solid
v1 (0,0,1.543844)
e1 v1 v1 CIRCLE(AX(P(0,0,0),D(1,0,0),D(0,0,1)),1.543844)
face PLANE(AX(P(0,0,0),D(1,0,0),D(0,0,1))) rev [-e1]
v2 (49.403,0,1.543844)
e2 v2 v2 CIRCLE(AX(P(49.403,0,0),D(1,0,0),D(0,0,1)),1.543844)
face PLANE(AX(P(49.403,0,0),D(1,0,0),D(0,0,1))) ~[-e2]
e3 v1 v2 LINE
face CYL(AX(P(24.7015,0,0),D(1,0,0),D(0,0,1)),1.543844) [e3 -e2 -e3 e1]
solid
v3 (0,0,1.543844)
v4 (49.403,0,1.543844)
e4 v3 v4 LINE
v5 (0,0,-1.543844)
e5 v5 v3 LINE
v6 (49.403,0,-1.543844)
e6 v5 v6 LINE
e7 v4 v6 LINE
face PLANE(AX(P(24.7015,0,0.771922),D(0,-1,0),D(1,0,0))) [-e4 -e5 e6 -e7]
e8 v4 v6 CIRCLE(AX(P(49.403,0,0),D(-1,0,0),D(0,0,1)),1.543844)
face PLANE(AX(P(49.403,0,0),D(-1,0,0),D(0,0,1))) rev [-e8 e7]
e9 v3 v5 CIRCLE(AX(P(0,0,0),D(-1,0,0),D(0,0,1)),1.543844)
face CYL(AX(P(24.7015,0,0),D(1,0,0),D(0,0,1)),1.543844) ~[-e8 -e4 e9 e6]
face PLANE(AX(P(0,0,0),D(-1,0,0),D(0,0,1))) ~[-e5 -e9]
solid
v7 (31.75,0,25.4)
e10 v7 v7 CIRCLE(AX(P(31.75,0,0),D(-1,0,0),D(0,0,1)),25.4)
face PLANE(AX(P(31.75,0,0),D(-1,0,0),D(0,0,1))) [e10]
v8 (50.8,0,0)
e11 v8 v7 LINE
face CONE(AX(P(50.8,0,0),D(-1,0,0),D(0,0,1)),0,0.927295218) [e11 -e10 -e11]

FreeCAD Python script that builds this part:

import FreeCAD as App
import Part
import Sketcher
Q = App.Units.Quantity

doc = App.newDocument("Part")
body = doc.addObject("PartDesign::Body", "Body")

# Sketch on XZ plane
sketch1 = doc.addObject("Sketcher::SketchObject", "Sketch")
body.addObject(sketch1)
sketch1.AttachmentSupport = (doc.XZ_Plane, [""])
sketch1.MapMode = "FlatFace"
sketch1.addGeometry(Part.LineSegment(App.Vector(0, 1.5, 0), App.Vector(0, 0, 0)), False)
sketch1.addGeometry(Part.LineSegment(App.Vector(0, 0, 0), App.Vector(49.4, 0, 0)), False)
sketch1.addGeometry(Part.LineSegment(App.Vector(49.4, 0, 0), App.Vector(49.4, 1.5, 0)), False)
sketch1.addGeometry(Part.LineSegment(App.Vector(49.4, 1.5, 0), App.Vector(0, 1.5, 0)), False)
sketch1.addConstraint(Sketcher.Constraint("Coincident", 0, 2, 1, 1))
sketch1.addConstraint(Sketcher.Constraint("Coincident", 1, 2, 2, 1))
sketch1.addConstraint(Sketcher.Constraint("Coincident", 2, 2, 3, 1))
sketch1.addConstraint(Sketcher.Constraint("Coincident", 3, 2, 0, 1))
sketch1.addConstraint(Sketcher.Constraint("Vertical", 0))
sketch1.addConstraint(Sketcher.Constraint("Horizontal", 1))
sketch1.addConstraint(Sketcher.Constraint("Vertical", 2))
sketch1.addConstraint(Sketcher.Constraint("Horizontal", 3))
sketch1.addConstraint(Sketcher.Constraint("Coincident", 0, 2, -1, 1))
sketch1.addConstraint(Sketcher.Constraint("DistanceX", 1, 1, 1, 2, Q("1.945 in")))
sketch1.addConstraint(Sketcher.Constraint("DistanceY", 0, 2, 0, 1, 1.543844))
revolution = doc.addObject("PartDesign::Revolution", "Revolution")
body.addObject(revolution)
revolution.Profile = sketch1
revolution.ReferenceAxis = (sketch1, ["H_Axis"])
revolution.Angle = 360
body2 = doc.addObject("PartDesign::Body", "Body001")

# Sketch on XZ plane
sketch2 = doc.addObject("Sketcher::SketchObject", "Sketch001")
body2.addObject(sketch2)
sketch2.AttachmentSupport = (doc.getObject("XZ_Plane001"), [""])
sketch2.MapMode = "FlatFace"
sketch2.addGeometry(Part.LineSegment(App.Vector(32, 25, 0), App.Vector(32, 0, 0)), False)
sketch2.addGeometry(Part.LineSegment(App.Vector(32, 0, 0), App.Vector(51, 0, 0)), False)
sketch2.addGeometry(Part.LineSegment(App.Vector(51, 0, 0), App.Vector(32, 25, 0)), False)
sketch2.addConstraint(Sketcher.Constraint("Coincident", 0, 2, 1, 1))
sketch2.addConstraint(Sketcher.Constraint("Coincident", 1, 2, 2, 1))
sketch2.addConstraint(Sketcher.Constraint("Coincident", 2, 2, 0, 1))
sketch2.addConstraint(Sketcher.Constraint("Vertical", 0))
sketch2.addConstraint(Sketcher.Constraint("Horizontal", 1))
sketch2.addConstraint(Sketcher.Constraint("PointOnObject", 0, 2, -1))
sketch2.addConstraint(Sketcher.Constraint("DistanceY", 0, 2, 0, 1, Q("1 in")))
sketch2.addConstraint(Sketcher.Constraint("DistanceX", -1, 1, 1, 2, Q("2 in")))
sketch2.addConstraint(Sketcher.Constraint("DistanceX", 1, 1, 1, 2, Q("0.75 in")))
revolution2 = doc.addObject("PartDesign::Revolution", "Revolution001")
body2.addObject(revolution2)
revolution2.Profile = sketch2
revolution2.ReferenceAxis = (sketch2, ["H_Axis"])
revolution2.Angle = 360
body3 = doc.addObject("PartDesign::Body", "Body002")

# Sketch on XZ plane
sketch3 = doc.addObject("Sketcher::SketchObject", "Sketch002")
body3.addObject(sketch3)
sketch3.AttachmentSupport = (doc.getObject("XZ_Plane002"), [""])
sketch3.MapMode = "FlatFace"
sketch3.addGeometry(Part.LineSegment(App.Vector(0, 1.5, 0), App.Vector(0, 0, 0)), False)
sketch3.addGeometry(Part.LineSegment(App.Vector(0, 0, 0), App.Vector(49.4, 0, 0)), False)
sketch3.addGeometry(Part.LineSegment(App.Vector(49.4, 0, 0), App.Vector(49.4, 1.5, 0)), False)
sketch3.addGeometry(Part.LineSegment(App.Vector(49.4, 1.5, 0), App.Vector(0, 1.5, 0)), False)
sketch3.addConstraint(Sketcher.Constraint("Coincident", 0, 2, 1, 1))
sketch3.addConstraint(Sketcher.Constraint("Coincident", 1, 2, 2, 1))
sketch3.addConstraint(Sketcher.Constraint("Coincident", 2, 2, 3, 1))
sketch3.addConstraint(Sketcher.Constraint("Coincident", 3, 2, 0, 1))
sketch3.addConstraint(Sketcher.Constraint("Vertical", 0))
sketch3.addConstraint(Sketcher.Constraint("Horizontal", 1))
sketch3.addConstraint(Sketcher.Constraint("Vertical", 2))
sketch3.addConstraint(Sketcher.Constraint("Horizontal", 3))
sketch3.addConstraint(Sketcher.Constraint("Coincident", 0, 2, -1, 1))
sketch3.addConstraint(Sketcher.Constraint("DistanceX", 1, 1, 1, 2, Q("1.945 in")))
sketch3.addConstraint(Sketcher.Constraint("DistanceY", 0, 2, 0, 1, 1.543844))
revolution3 = doc.addObject("PartDesign::Revolution", "Revolution002")
body3.addObject(revolution3)
revolution3.Profile = sketch3
revolution3.ReferenceAxis = (sketch3, ["H_Axis"])
revolution3.Angle = 180
revolution3.Reversed = True

doc.recompute()
